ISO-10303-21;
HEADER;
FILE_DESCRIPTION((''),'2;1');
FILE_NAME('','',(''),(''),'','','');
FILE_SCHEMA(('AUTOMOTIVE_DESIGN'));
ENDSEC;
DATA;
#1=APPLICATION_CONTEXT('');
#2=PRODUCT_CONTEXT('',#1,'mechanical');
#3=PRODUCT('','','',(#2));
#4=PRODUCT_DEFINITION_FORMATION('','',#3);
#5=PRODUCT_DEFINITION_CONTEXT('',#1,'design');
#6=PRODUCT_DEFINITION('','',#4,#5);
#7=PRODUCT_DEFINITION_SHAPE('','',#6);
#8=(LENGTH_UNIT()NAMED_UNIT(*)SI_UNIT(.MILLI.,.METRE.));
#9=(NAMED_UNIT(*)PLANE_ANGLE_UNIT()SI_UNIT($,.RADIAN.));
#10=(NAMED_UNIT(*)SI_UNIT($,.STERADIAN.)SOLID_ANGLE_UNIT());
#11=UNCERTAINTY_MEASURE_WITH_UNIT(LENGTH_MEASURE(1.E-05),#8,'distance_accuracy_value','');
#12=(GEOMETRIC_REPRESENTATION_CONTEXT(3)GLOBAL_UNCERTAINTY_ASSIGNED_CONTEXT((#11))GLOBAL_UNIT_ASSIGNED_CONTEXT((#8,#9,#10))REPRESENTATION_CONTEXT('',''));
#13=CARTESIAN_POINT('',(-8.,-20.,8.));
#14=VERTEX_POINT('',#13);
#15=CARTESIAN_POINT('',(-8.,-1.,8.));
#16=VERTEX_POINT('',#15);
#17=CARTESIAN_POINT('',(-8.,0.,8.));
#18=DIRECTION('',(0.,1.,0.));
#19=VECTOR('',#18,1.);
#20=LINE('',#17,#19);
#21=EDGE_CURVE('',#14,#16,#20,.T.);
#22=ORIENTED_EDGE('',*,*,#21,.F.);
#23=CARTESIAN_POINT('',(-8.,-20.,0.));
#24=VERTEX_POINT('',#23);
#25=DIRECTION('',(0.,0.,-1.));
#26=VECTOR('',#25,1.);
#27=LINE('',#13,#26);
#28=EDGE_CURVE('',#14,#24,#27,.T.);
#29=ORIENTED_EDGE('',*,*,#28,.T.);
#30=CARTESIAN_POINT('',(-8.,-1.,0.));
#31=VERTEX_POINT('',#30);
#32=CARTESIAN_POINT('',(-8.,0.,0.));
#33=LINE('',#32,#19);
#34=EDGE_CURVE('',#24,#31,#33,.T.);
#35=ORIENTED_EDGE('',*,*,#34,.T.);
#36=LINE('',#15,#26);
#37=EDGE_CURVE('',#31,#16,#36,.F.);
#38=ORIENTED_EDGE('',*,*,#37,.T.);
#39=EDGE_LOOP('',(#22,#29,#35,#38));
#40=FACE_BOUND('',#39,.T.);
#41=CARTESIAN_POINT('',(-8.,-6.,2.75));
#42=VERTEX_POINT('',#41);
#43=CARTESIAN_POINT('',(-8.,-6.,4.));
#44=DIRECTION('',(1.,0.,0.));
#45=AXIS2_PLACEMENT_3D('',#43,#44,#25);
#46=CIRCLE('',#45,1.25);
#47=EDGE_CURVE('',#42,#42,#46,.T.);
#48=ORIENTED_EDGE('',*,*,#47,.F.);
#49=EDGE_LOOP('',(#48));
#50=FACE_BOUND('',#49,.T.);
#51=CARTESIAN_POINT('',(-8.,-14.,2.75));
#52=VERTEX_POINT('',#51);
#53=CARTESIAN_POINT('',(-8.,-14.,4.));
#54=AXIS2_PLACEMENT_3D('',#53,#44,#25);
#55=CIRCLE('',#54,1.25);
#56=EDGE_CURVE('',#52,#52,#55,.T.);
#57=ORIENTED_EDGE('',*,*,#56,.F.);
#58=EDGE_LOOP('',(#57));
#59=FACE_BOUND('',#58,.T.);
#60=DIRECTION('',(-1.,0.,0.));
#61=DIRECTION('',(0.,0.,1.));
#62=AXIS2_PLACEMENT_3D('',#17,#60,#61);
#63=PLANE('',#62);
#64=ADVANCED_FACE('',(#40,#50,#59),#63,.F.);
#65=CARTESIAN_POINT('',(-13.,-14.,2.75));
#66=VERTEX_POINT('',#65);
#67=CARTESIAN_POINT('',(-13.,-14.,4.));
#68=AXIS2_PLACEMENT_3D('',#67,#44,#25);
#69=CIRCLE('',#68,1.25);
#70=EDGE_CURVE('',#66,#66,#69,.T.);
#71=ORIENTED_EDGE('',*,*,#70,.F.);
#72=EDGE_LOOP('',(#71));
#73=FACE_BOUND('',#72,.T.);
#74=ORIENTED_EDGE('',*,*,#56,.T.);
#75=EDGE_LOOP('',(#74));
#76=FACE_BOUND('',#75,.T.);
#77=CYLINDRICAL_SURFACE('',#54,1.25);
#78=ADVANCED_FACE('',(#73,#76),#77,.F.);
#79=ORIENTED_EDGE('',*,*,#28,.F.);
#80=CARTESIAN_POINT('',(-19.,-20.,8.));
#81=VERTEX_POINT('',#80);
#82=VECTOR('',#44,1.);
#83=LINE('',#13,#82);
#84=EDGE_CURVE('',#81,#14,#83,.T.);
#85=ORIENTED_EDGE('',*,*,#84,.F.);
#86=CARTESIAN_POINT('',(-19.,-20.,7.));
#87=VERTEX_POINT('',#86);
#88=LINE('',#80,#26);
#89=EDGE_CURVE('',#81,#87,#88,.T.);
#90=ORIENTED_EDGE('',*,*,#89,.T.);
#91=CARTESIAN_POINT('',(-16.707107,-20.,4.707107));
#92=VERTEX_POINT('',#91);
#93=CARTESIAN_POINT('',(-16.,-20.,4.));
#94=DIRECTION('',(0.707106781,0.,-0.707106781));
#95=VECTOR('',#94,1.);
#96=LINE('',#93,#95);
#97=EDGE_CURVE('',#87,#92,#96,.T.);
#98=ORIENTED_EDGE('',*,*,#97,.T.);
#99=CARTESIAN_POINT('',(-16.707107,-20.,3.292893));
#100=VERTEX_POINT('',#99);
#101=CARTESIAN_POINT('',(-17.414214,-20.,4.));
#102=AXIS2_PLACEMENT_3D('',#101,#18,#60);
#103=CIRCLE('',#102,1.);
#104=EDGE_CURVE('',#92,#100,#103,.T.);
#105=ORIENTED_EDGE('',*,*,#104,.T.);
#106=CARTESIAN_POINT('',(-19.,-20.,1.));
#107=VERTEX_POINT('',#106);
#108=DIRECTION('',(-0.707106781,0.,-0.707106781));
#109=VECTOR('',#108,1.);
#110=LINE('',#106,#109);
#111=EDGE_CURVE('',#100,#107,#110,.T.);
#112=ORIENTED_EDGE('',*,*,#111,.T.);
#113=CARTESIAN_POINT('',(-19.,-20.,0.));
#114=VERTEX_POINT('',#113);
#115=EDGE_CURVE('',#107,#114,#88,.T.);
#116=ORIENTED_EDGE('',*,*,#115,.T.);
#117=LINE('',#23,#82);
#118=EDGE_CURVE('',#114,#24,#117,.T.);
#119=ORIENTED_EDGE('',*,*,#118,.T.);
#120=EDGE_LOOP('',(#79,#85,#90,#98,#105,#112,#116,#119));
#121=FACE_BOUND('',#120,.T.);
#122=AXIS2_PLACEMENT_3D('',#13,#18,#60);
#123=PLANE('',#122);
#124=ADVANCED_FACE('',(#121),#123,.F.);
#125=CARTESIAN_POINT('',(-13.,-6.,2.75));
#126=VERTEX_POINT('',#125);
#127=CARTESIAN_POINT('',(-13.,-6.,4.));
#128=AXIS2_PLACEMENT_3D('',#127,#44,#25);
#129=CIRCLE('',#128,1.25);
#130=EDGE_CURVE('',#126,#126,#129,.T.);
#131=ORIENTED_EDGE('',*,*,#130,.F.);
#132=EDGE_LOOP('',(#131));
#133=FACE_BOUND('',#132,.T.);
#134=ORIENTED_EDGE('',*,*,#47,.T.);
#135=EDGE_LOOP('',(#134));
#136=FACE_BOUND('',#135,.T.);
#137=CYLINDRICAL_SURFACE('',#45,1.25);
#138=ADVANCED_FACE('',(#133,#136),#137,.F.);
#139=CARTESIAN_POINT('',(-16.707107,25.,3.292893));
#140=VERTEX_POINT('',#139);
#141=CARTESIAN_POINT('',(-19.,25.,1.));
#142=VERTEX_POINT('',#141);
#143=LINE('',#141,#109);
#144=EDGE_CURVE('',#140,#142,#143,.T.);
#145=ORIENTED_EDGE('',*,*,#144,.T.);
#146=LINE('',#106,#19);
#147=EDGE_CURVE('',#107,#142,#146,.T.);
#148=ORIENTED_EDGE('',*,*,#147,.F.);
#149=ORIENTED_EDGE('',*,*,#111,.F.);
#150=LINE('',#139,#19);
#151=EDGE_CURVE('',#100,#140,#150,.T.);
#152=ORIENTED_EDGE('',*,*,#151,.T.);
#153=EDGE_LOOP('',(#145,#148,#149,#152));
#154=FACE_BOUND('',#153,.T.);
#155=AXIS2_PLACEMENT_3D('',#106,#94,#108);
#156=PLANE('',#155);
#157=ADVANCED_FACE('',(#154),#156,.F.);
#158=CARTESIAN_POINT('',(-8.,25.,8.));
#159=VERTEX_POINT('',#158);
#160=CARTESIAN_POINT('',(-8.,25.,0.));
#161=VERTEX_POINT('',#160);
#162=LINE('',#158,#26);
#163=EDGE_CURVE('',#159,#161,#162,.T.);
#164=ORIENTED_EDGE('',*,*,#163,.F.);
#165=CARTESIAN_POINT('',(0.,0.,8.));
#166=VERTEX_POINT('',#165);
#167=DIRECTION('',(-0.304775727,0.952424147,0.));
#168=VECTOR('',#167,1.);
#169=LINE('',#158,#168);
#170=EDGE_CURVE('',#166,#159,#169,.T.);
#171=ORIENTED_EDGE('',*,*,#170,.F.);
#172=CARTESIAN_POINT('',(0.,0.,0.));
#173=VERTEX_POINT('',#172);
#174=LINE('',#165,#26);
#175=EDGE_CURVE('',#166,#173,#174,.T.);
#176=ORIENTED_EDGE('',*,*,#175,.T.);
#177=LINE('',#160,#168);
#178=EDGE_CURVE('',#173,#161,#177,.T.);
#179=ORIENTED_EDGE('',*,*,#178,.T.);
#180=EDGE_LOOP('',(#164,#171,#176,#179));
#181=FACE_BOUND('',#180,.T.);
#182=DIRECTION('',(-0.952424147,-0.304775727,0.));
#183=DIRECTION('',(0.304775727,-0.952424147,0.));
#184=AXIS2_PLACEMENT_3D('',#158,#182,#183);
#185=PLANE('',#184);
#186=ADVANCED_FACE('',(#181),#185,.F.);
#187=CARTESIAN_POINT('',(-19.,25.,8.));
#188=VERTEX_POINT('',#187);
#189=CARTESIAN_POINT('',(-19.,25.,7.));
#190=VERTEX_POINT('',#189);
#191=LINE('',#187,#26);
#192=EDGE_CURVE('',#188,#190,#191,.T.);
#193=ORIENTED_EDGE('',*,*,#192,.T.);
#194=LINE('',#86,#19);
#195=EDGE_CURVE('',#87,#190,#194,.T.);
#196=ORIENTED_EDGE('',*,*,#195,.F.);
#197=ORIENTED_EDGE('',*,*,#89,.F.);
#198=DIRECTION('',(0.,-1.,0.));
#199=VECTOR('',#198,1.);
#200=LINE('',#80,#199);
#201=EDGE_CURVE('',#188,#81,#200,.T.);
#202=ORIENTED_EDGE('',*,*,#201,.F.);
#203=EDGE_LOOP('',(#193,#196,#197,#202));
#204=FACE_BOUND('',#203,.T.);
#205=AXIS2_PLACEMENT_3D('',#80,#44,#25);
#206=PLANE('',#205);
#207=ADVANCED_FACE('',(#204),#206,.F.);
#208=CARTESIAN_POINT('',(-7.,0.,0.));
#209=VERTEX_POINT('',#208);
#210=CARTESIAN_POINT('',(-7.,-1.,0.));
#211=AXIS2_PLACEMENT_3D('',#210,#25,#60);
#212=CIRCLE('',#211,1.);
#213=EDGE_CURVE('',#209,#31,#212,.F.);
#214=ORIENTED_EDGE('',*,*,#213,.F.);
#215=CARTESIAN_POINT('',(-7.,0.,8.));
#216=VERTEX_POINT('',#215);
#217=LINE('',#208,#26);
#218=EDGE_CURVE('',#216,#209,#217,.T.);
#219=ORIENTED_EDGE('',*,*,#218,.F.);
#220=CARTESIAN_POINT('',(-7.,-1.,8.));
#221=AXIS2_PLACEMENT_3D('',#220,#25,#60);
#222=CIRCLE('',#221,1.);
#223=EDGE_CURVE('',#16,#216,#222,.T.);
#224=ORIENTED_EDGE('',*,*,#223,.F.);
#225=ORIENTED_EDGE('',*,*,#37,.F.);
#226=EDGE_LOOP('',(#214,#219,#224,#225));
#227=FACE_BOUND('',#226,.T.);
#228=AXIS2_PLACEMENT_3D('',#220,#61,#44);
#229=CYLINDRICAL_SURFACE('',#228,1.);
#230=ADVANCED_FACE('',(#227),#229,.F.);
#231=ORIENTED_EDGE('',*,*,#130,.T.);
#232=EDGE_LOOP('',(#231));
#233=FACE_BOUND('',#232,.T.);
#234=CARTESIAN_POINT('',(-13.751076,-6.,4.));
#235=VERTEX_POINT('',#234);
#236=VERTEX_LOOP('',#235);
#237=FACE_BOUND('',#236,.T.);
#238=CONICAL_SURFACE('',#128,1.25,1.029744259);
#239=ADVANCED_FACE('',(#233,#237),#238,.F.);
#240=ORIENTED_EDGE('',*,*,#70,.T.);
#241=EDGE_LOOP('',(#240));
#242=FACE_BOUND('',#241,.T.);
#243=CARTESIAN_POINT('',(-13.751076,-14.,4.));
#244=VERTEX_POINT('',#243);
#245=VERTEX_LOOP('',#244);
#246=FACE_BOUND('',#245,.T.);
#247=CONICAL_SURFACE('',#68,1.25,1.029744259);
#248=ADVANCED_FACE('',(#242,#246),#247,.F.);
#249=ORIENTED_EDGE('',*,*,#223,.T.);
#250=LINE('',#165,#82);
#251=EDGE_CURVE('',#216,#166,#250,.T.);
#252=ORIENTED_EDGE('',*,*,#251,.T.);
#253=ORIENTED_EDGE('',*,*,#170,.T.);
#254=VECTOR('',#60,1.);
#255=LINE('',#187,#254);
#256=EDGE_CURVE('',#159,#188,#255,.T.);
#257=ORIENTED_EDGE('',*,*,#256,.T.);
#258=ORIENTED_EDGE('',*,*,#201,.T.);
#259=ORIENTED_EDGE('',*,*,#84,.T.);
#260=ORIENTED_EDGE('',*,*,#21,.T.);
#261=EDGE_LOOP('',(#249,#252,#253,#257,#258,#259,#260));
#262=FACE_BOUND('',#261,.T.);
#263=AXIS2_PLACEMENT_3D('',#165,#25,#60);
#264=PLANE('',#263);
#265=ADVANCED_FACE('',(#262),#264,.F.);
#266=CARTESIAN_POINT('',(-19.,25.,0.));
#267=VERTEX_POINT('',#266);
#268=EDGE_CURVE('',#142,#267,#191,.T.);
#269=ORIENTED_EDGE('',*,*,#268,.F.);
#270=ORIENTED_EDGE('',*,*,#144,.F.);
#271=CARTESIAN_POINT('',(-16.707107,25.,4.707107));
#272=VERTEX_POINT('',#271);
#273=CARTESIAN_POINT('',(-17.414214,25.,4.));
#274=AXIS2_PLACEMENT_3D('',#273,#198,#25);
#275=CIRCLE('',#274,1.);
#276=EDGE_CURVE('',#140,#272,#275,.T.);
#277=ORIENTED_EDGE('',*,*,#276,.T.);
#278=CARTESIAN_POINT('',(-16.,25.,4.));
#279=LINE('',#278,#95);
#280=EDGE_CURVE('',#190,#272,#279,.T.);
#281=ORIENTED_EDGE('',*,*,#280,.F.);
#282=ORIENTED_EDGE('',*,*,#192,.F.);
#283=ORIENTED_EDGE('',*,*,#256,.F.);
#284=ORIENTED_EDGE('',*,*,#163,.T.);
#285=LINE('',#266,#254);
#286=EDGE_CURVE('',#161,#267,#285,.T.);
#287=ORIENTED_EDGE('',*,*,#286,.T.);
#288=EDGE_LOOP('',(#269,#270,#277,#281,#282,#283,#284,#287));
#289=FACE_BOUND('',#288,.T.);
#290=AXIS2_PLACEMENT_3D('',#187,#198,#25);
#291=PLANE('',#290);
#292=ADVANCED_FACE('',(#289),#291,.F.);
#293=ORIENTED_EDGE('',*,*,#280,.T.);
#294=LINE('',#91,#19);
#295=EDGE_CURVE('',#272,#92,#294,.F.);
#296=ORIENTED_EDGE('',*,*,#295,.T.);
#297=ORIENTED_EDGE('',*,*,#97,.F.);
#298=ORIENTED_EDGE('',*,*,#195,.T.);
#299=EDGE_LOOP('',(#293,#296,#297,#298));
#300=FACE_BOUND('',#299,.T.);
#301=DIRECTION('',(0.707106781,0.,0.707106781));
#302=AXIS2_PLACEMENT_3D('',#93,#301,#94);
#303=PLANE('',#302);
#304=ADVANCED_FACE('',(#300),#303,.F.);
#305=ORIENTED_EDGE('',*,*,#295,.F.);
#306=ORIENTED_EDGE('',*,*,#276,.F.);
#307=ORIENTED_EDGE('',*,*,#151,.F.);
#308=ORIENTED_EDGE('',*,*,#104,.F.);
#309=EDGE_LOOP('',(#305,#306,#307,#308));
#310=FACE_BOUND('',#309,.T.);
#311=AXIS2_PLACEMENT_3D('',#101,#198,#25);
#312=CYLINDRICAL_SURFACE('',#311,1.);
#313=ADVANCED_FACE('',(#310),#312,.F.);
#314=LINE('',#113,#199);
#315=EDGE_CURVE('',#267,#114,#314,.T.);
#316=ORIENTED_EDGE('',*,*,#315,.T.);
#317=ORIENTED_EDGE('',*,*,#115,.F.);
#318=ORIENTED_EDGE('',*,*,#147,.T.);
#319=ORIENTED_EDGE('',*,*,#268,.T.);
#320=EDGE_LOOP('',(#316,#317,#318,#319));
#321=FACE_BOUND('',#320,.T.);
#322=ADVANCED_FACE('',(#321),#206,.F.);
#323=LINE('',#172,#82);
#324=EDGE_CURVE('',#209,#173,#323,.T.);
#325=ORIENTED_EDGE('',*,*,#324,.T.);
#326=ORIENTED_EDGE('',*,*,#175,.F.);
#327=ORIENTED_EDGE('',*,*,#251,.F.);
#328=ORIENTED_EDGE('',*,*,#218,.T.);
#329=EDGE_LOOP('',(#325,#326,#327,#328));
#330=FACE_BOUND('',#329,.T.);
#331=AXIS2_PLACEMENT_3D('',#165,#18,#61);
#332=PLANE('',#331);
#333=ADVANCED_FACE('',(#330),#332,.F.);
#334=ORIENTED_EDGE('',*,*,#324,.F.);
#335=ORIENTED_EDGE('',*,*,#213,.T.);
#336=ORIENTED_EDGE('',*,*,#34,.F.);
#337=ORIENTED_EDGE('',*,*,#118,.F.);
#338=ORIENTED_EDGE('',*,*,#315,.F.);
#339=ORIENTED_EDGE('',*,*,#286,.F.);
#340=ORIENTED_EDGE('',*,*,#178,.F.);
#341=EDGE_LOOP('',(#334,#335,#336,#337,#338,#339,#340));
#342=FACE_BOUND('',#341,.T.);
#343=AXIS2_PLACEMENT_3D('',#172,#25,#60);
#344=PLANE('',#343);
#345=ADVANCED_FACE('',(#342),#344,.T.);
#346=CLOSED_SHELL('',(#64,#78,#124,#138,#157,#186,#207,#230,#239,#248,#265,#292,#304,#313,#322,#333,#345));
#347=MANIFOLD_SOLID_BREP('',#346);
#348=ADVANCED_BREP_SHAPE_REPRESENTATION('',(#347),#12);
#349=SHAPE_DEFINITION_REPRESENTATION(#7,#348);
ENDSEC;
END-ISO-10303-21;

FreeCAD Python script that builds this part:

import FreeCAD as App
import Part
import Sketcher
Q = App.Units.Quantity


def edges_at(feature, points):
    """Names of the edges that pass closest to the given points."""
    edges = feature.Shape.Edges
    near = lambda p: min(range(len(edges)), key=lambda i: edges[i].distToShape(Part.Vertex(*p))[0])
    return sorted({f"Edge{near(p) + 1}" for p in points})


def add_polygon(sketch, points):
    """Adds a closed chain of lines whose ends are joined by coincident constraints."""
    first, n = sketch.GeometryCount, len(points)
    for a, b in zip(points, points[1:] + points[:1]):
        sketch.addGeometry(Part.LineSegment(App.Vector(*a, 0), App.Vector(*b, 0)), False)
    for i in range(n):
        sketch.addConstraint(Sketcher.Constraint("Coincident", first + i, 2, first + (i + 1) % n, 1))

doc = App.newDocument("Part")
body = doc.addObject("PartDesign::Body", "Body")

# Sketch on XY plane
sketch1 = doc.addObject("Sketcher::SketchObject", "Sketch")
body.addObject(sketch1)
sketch1.AttachmentSupport = (doc.XY_Plane, [""])
sketch1.MapMode = "FlatFace"
add_polygon(sketch1, [(-8, 0), (0, 0), (-8, 25), (-19, 25), (-19, -20), (-8, -20)])  # lines 0-5
sketch1.addConstraint([
    Sketcher.Constraint("Horizontal", 0),
    Sketcher.Constraint("Horizontal", 2),
    Sketcher.Constraint("Vertical", 3),
    Sketcher.Constraint("Horizontal", 4),
    Sketcher.Constraint("Vertical", 5),
    Sketcher.Constraint("Coincident", 0, 2, -1, 1),
    Sketcher.Constraint("Vertical", 1, 2, 4, 2),
    Sketcher.Constraint("DistanceX", 0, 1, 0, 2, Q("8 mm")),
    Sketcher.Constraint("DistanceX", 2, 2, 2, 1, Q("11 mm")),
    Sketcher.Constraint("DistanceY", 3, 2, 3, 1, Q("45 mm")),
    Sketcher.Constraint("DistanceY", 5, 1, 5, 2, Q("20 mm")),
])
pad1 = doc.addObject("PartDesign::Pad", "Pad")
body.addObject(pad1)
pad1.Profile = sketch1
pad1.Length = 8

# Sketch on XZ plane
sketch2 = doc.addObject("Sketcher::SketchObject", "Sketch001")
body.addObject(sketch2)
sketch2.AttachmentSupport = (doc.XZ_Plane, [""])
sketch2.MapMode = "FlatFace"
sketch2.AttachmentOffset = App.Placement(App.Vector(0, 0, -25), App.Rotation())
add_polygon(sketch2, [(-19, 1), (-19, 7), (-16, 4)])  # lines 0-2
sketch2.addConstraint([
    Sketcher.Constraint("Vertical", 0),
    Sketcher.Constraint("Perpendicular", 1, 2),
    Sketcher.Constraint("Equal", 1, 2),
    Sketcher.Constraint("DistanceY", 0, 1, 0, 2, Q("6 mm")),
    Sketcher.Constraint("DistanceX", 0, 2, -1, 1, Q("19 mm")),
    Sketcher.Constraint("DistanceY", -1, 1, 0, 2, Q("7 mm")),
])
pocket1 = doc.addObject("PartDesign::Pocket", "Pocket")
body.addObject(pocket1)
pocket1.Profile = sketch2
pocket1.Type = "ThroughAll"
pocket1.Reversed = True

# Sketch on YZ plane
sketch3 = doc.addObject("Sketcher::SketchObject", "Sketch002")
body.addObject(sketch3)
sketch3.AttachmentSupport = (doc.YZ_Plane, [""])
sketch3.MapMode = "FlatFace"
sketch3.AttachmentOffset = App.Placement(App.Vector(0, 0, -8), App.Rotation())
sketch3.addGeometry([
    Part.Circle(App.Vector(-6, 4, 0), App.Vector(0, 0, 1), 1.2),
    Part.Circle(App.Vector(-14, 4, 0), App.Vector(0, 0, 1), 1.2),
], False)
sketch3.addConstraint([
    Sketcher.Constraint("Equal", 0, 1),
    Sketcher.Constraint("Horizontal", 0, 3, 1, 3),
    Sketcher.Constraint("Diameter", 0, Q("2.5 mm")),
    Sketcher.Constraint("DistanceX", 0, 3, -1, 1, Q("6 mm")),
    Sketcher.Constraint("DistanceY", -1, 1, 0, 3, Q("4 mm")),
    Sketcher.Constraint("DistanceX", 1, 3, -1, 1, Q("14 mm")),
])
doc.recompute()
hole = doc.addObject("PartDesign::Hole", "Hole")
body.addObject(hole)
hole.Profile = sketch3
hole.ThreadType = "None"
hole.Diameter = 2.5
hole.DepthType = "Dimension"
hole.Depth = 5
hole.DrillPoint = "Angled"
hole.DrillPointAngle = 118
doc.recompute()

fillet = doc.addObject("PartDesign::Fillet", "Fillet")
body.addObject(fillet)
fillet.Base = (hole, edges_at(hole, [(-16, 2.5, 4)]))
fillet.Radius = 1
doc.recompute()

fillet2 = doc.addObject("PartDesign::Fillet", "Fillet001")
body.addObject(fillet2)
fillet2.Base = (fillet, edges_at(fillet, [(-8, 0, 4)]))
fillet2.Radius = 1

doc.recompute()
